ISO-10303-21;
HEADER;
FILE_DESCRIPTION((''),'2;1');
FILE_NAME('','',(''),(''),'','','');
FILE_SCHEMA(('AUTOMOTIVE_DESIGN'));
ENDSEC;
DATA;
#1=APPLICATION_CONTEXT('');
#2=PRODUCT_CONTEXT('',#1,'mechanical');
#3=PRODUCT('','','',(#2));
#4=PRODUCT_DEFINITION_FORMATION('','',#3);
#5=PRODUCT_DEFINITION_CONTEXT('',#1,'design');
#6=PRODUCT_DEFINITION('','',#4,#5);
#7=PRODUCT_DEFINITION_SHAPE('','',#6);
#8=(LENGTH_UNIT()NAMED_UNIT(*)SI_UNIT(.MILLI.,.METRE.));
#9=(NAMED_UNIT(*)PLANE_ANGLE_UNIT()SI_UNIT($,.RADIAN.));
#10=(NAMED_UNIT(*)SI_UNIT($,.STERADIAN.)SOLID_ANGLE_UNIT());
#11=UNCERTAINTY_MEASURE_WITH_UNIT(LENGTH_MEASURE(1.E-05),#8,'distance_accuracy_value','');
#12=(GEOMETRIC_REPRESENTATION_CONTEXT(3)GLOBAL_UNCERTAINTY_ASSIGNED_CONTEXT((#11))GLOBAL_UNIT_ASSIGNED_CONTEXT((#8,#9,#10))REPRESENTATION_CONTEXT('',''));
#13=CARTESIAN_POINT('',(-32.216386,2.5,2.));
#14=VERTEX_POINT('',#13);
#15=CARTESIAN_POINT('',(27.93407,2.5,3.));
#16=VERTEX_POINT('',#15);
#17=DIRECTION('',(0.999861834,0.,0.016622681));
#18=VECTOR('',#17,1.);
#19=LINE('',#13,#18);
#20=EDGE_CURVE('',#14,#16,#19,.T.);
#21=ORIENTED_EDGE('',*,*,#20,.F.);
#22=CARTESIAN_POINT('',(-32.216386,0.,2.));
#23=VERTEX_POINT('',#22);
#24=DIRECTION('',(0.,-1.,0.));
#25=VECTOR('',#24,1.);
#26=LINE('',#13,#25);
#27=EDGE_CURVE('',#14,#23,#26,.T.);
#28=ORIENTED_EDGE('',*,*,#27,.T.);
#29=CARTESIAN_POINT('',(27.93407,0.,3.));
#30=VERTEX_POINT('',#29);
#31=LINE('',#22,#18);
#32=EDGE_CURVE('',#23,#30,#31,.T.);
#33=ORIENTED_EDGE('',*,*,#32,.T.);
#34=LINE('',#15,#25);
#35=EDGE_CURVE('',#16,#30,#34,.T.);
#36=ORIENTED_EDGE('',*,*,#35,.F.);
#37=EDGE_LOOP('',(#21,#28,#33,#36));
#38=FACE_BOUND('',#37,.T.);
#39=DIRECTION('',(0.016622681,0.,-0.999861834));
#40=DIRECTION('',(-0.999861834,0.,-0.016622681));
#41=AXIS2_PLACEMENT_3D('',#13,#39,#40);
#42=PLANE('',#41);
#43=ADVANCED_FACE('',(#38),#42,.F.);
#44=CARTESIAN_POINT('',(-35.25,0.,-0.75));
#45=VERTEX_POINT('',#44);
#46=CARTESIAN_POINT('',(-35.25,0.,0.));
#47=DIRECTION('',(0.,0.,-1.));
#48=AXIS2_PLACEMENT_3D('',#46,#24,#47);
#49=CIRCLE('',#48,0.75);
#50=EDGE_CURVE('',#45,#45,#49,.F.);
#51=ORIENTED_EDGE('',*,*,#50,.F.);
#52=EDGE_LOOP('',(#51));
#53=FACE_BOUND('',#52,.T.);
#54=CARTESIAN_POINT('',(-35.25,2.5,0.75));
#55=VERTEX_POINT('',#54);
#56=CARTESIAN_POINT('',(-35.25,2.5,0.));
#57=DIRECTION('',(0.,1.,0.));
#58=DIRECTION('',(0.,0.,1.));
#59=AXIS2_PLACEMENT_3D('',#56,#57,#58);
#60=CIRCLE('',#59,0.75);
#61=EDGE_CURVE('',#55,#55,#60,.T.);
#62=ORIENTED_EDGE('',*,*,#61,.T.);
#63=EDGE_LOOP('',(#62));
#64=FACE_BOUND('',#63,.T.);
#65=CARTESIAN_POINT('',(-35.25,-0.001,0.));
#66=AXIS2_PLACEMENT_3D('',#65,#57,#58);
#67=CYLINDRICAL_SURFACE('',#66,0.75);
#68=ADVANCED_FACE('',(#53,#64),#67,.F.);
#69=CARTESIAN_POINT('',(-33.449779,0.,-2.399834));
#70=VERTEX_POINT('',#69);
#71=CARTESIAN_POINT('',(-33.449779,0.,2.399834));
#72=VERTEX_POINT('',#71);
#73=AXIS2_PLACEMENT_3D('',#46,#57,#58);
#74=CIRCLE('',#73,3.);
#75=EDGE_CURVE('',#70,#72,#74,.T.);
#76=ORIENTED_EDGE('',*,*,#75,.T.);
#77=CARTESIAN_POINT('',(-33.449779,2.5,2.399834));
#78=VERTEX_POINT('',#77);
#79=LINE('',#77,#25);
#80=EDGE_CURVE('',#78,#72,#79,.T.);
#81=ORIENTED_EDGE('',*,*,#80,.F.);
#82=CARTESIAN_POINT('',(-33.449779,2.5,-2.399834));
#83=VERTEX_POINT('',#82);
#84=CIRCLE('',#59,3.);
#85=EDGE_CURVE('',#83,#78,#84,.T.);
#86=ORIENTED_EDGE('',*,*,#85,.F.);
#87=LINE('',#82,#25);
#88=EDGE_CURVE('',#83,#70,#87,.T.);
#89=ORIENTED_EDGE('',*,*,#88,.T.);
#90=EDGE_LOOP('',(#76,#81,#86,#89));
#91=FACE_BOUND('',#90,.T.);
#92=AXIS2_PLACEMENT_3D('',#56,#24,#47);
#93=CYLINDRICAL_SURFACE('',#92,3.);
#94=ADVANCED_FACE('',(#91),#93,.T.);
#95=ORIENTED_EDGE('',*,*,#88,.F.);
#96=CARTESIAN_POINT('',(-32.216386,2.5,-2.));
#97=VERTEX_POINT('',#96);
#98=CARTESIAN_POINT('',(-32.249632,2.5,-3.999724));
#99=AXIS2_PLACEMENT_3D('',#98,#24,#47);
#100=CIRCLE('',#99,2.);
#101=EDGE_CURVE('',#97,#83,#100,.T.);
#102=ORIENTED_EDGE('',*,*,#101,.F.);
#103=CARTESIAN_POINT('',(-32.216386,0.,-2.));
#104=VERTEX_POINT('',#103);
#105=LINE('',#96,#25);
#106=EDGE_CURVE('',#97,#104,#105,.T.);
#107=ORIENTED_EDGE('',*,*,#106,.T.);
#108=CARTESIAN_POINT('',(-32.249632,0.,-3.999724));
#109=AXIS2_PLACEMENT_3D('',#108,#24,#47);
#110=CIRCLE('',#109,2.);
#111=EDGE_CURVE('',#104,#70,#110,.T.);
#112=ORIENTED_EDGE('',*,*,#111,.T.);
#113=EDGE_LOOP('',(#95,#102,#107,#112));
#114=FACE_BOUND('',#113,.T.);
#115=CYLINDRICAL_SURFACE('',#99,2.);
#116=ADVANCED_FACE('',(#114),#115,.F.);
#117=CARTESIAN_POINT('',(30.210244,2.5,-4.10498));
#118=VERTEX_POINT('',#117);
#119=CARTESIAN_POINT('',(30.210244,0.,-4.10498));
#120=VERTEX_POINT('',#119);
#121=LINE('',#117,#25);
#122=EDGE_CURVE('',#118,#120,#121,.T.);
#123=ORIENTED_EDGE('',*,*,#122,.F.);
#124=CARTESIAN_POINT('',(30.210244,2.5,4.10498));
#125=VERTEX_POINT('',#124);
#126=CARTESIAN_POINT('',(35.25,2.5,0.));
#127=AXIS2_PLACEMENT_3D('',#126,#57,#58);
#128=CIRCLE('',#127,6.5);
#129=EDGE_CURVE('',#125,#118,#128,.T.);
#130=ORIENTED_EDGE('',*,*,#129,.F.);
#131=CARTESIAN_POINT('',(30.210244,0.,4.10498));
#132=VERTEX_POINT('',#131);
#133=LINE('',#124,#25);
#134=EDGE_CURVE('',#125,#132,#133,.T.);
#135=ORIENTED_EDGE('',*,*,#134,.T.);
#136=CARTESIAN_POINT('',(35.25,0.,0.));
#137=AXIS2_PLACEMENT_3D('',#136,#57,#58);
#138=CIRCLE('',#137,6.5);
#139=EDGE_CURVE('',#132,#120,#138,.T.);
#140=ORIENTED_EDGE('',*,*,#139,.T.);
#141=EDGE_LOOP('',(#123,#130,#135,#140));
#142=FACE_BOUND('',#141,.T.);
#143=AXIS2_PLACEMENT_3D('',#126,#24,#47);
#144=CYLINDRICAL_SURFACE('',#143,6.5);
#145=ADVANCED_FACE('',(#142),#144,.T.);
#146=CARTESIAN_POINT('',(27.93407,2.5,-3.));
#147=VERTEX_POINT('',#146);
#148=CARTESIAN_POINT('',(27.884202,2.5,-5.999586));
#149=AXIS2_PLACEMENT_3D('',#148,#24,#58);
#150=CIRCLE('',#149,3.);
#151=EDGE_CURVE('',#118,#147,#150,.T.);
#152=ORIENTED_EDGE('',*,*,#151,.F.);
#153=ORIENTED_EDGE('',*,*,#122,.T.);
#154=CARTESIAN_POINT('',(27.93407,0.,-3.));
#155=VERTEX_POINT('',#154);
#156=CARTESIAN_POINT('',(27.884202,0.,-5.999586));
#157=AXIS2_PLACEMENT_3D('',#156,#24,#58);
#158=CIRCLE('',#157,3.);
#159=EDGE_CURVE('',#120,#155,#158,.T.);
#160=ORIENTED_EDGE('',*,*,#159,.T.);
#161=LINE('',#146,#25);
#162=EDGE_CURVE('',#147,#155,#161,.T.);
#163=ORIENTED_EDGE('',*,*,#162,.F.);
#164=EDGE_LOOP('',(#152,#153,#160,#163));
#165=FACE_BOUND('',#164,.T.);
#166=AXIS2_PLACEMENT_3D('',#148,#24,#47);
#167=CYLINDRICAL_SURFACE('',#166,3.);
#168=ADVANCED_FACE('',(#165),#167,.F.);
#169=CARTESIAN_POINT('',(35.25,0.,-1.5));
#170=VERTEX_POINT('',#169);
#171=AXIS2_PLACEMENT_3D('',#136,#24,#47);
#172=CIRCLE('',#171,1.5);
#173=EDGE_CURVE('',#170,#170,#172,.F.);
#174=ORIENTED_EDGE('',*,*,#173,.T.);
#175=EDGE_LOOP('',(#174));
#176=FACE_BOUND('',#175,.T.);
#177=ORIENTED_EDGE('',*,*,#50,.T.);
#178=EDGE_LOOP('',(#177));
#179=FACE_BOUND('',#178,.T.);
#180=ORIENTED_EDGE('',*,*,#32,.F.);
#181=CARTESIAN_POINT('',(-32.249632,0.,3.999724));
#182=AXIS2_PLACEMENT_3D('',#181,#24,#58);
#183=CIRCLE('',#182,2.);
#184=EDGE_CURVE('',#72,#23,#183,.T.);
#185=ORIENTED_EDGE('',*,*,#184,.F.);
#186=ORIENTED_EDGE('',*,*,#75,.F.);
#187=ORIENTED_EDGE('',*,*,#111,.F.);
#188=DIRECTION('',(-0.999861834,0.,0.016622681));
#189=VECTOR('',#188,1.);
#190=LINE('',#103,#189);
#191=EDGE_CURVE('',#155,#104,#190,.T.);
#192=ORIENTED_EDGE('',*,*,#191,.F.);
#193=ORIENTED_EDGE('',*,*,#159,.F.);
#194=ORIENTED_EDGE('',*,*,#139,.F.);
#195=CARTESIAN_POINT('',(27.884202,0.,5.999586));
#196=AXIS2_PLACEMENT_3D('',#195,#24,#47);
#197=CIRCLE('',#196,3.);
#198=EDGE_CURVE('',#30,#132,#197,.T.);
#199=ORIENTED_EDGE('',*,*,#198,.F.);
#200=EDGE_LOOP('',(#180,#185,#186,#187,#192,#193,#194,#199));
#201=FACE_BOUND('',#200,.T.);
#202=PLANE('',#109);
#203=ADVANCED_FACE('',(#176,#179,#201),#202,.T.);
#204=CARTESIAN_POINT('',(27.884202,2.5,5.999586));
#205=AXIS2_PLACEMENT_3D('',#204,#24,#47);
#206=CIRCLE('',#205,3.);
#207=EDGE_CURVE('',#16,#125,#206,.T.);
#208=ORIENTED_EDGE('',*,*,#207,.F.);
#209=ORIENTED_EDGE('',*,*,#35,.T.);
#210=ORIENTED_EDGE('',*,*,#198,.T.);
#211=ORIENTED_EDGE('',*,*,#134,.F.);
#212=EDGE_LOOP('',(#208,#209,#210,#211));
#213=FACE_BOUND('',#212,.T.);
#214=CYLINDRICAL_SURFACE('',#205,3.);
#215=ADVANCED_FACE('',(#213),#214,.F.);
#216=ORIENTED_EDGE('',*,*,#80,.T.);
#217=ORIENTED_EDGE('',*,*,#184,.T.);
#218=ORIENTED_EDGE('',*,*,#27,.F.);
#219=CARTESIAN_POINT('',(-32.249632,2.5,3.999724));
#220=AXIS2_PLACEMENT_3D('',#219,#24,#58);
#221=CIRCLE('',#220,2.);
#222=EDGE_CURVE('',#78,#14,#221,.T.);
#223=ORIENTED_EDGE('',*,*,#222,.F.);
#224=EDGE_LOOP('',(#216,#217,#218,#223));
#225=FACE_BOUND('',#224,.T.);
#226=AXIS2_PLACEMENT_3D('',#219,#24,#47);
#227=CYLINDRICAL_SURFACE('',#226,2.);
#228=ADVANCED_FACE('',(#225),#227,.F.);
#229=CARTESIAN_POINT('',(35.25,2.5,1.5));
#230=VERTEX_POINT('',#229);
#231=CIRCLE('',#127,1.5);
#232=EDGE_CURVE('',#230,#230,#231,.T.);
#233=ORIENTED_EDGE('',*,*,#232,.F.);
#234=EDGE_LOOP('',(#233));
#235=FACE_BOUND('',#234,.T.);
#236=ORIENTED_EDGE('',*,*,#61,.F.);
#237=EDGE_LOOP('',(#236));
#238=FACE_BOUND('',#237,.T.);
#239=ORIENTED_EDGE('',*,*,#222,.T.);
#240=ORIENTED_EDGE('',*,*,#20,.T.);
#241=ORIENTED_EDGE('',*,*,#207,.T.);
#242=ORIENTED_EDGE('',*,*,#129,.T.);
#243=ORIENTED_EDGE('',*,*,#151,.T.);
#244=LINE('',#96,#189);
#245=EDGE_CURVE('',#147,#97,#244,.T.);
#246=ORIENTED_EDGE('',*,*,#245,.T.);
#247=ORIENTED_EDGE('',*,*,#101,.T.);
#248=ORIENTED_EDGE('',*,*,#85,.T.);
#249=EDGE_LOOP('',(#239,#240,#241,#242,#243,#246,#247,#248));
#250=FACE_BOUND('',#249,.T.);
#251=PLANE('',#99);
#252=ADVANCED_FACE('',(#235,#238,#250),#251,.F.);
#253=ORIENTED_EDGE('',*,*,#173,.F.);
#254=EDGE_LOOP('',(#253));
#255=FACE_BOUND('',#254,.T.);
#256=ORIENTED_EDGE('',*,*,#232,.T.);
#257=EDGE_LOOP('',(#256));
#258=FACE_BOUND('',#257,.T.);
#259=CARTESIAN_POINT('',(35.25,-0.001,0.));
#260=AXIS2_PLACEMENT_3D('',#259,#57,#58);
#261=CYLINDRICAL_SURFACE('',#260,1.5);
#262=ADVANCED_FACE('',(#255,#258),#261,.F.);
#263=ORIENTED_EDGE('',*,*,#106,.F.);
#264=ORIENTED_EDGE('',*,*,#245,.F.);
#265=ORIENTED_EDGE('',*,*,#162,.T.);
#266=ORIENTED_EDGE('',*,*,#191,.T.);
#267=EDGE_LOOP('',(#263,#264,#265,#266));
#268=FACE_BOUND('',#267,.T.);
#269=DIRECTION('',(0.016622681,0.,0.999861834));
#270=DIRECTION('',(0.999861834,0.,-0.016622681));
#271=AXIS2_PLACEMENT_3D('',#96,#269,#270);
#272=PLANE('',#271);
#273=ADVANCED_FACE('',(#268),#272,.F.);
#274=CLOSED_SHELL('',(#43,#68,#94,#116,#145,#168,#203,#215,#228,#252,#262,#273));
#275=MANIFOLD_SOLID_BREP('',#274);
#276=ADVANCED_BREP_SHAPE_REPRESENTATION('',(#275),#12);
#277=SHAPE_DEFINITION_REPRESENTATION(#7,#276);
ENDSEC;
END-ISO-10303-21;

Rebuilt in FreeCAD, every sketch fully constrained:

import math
import FreeCAD as App
import Part
import Sketcher

V = App.Vector

doc = App.newDocument("Part")
body = doc.addObject("PartDesign::Body", "Body")

sketch1 = body.newObject("Sketcher::SketchObject", "Sketch")
sketch1.AttachmentSupport = (doc.getObject("XZ_Plane"), [""])
sketch1.MapMode = "FlatFace"
sketch1.addGeometry(Part.LineSegment(V(27.9, -3, 0), V(-32.2, -2, 0)), False)
sketch1.addGeometry(Part.ArcOfCircle(Part.Circle(V(-32.2, -4, 0), V(0, 0, 1), 2), math.radians(89), math.radians(127)), False)
sketch1.addGeometry(Part.ArcOfCircle(Part.Circle(V(-35.2, 0, 0), V(0, 0, 1), 3), math.radians(53), math.radians(307)), False)
sketch1.addGeometry(Part.ArcOfCircle(Part.Circle(V(-32.2, 4, 0), V(0, 0, 1), 2), math.radians(-127), math.radians(-89)), False)
sketch1.addGeometry(Part.LineSegment(V(-32.2, 2, 0), V(27.9, 3, 0)), False)
sketch1.addGeometry(Part.ArcOfCircle(Part.Circle(V(27.9, 6, 0), V(0, 0, 1), 3), math.radians(-89), math.radians(-39)), False)
sketch1.addGeometry(Part.ArcOfCircle(Part.Circle(V(35.2, 0, 0), V(0, 0, 1), 6.5), math.radians(-141), math.radians(141)), False)
sketch1.addGeometry(Part.ArcOfCircle(Part.Circle(V(27.9, -6, 0), V(0, 0, 1), 3), math.radians(39), math.radians(89)), False)
sketch1.addConstraint(Sketcher.Constraint("Tangent", 0, 2, 1, 1))
sketch1.addConstraint(Sketcher.Constraint("Tangent", 1, 2, 2, 2))
sketch1.addConstraint(Sketcher.Constraint("Tangent", 2, 1, 3, 1))
sketch1.addConstraint(Sketcher.Constraint("Tangent", 3, 2, 4, 1))
sketch1.addConstraint(Sketcher.Constraint("Tangent", 4, 2, 5, 1))
sketch1.addConstraint(Sketcher.Constraint("Tangent", 5, 2, 6, 2))
sketch1.addConstraint(Sketcher.Constraint("Tangent", 6, 1, 7, 1))
sketch1.addConstraint(Sketcher.Constraint("Tangent", 7, 2, 0, 1))
sketch1.addConstraint(Sketcher.Constraint("Equal", 1, 3))
sketch1.addConstraint(Sketcher.Constraint("Equal", 2, 5))
sketch1.addConstraint(Sketcher.Constraint("Equal", 5, 7))
sketch1.addConstraint(Sketcher.Constraint("Symmetric", 2, 3, 6, 3, -1, 1))
sketch1.addConstraint(Sketcher.Constraint("Symmetric", 1, 3, 3, 3, -1))
sketch1.addConstraint(Sketcher.Constraint("Vertical", 5, 3, 7, 3))
sketch1.addConstraint(Sketcher.Constraint("Radius", 1, 2.0))
sketch1.addConstraint(Sketcher.Constraint("Radius", 2, 3.0))
sketch1.addConstraint(Sketcher.Constraint("Radius", 6, 6.5))
sketch1.addConstraint(Sketcher.Constraint("DistanceY", 0, 2, -1, 1, 2.0))
sketch1.addConstraint(Sketcher.Constraint("DistanceY", -1, 1, 4, 2, 3.0))
sketch1.addConstraint(Sketcher.Constraint("DistanceX", 2, 3, 6, 3, 70.5))
pad1 = body.newObject("PartDesign::Pad", "Pad")
pad1.Profile = sketch1
pad1.Length = 2.5
pad1.Reversed = True

sketch2 = body.newObject("Sketcher::SketchObject", "Sketch001")
sketch2.AttachmentSupport = (doc.getObject("XZ_Plane"), [""])
sketch2.MapMode = "FlatFace"
sketch2.AttachmentOffset = App.Placement(V(0, 0, -2.5), App.Rotation())
sketch2.addGeometry(Part.Circle(V(-35.2, 0, 0), V(0, 0, 1), 0.8), False)
sketch2.addConstraint(Sketcher.Constraint("PointOnObject", 0, 3, -1))
sketch2.addConstraint(Sketcher.Constraint("Diameter", 0, 1.5))
sketch2.addConstraint(Sketcher.Constraint("DistanceX", 0, 3, -1, 1, 35.25))
pocket1 = body.newObject("PartDesign::Pocket", "Pocket")
pocket1.Profile = sketch2
pocket1.Type = "UpToFirst"
pocket1.Reversed = True

sketch3 = body.newObject("Sketcher::SketchObject", "Sketch002")
sketch3.AttachmentSupport = (doc.getObject("XZ_Plane"), [""])
sketch3.MapMode = "FlatFace"
sketch3.AttachmentOffset = App.Placement(V(0, 0, -2.5), App.Rotation())
sketch3.addGeometry(Part.Circle(V(35.2, 0, 0), V(0, 0, 1), 1.5), False)
sketch3.addConstraint(Sketcher.Constraint("PointOnObject", 0, 3, -1))
sketch3.addConstraint(Sketcher.Constraint("Diameter", 0, 3.0))
sketch3.addConstraint(Sketcher.Constraint("DistanceX", -1, 1, 0, 3, 35.25))
pocket2 = body.newObject("PartDesign::Pocket", "Pocket001")
pocket2.Profile = sketch3
pocket2.Type = "UpToFirst"
pocket2.Reversed = True

doc.recompute()
